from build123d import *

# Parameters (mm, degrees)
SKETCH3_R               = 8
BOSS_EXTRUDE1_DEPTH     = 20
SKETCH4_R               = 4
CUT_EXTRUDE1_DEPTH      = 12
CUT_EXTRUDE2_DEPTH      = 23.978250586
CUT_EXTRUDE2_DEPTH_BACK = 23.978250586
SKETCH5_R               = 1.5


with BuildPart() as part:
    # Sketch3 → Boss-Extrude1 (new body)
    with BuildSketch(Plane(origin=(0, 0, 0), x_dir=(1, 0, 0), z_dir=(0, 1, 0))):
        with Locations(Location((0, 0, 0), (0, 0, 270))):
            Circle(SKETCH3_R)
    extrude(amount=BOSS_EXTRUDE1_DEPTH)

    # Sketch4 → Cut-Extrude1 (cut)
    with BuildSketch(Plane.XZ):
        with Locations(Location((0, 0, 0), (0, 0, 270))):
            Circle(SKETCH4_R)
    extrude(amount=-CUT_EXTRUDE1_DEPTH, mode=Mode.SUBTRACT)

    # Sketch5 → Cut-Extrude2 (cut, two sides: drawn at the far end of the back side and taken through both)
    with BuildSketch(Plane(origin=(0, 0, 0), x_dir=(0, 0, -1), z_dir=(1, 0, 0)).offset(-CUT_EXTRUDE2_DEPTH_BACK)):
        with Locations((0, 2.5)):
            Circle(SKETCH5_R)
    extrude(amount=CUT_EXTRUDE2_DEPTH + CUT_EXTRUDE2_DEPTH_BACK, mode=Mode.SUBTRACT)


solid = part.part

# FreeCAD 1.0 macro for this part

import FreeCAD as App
import Part
import Sketcher
from FreeCAD import Vector

doc = App.newDocument("Part")
body = doc.addObject("PartDesign::Body", "Body")

# Sketch on XZ plane
sketch1 = doc.addObject("Sketcher::SketchObject", "Sketch")
body.addObject(sketch1)
sketch1.AttachmentSupport = (doc.XZ_Plane, [""])
sketch1.MapMode = "FlatFace"
sketch1.addGeometry(Part.Circle(Vector(0, 0, 0), Vector(0, 0, 1), 8), False)
sketch1.addConstraint([
    Sketcher.Constraint("Coincident", 0, 3, -1, 1),
    Sketcher.Constraint("Diameter", 0, 16.0),
])
pad1 = doc.addObject("PartDesign::Pad", "Pad")
body.addObject(pad1)
pad1.Profile = sketch1
pad1.Length = 20
pad1.Reversed = True

# Sketch on XZ plane
sketch2 = doc.addObject("Sketcher::SketchObject", "Sketch001")
body.addObject(sketch2)
sketch2.AttachmentSupport = (doc.XZ_Plane, [""])
sketch2.MapMode = "FlatFace"
sketch2.addGeometry(Part.Circle(Vector(0, 0, 0), Vector(0, 0, 1), 4), False)
sketch2.addConstraint([
    Sketcher.Constraint("Coincident", 0, 3, -1, 1),
    Sketcher.Constraint("Diameter", 0, 8.0),
])
pocket1 = doc.addObject("PartDesign::Pocket", "Pocket")
body.addObject(pocket1)
pocket1.Profile = sketch2
pocket1.Length = 12

# Sketch on YZ plane
sketch3 = doc.addObject("Sketcher::SketchObject", "Sketch002")
body.addObject(sketch3)
sketch3.AttachmentSupport = (doc.YZ_Plane, [""])
sketch3.MapMode = "FlatFace"
sketch3.addGeometry(Part.Circle(Vector(2.5, 0, 0), Vector(0, 0, 1), 1.5), False)
sketch3.addConstraint([
    Sketcher.Constraint("PointOnObject", 0, 3, -1),
    Sketcher.Constraint("Diameter", 0, 3.0),
    Sketcher.Constraint("DistanceX", -1, 1, 0, 3, 2.5),
])
pocket2 = doc.addObject("PartDesign::Pocket", "Pocket001")
body.addObject(pocket2)
pocket2.Profile = sketch3
pocket2.Type = "ThroughAll"
pocket2.Midplane = True

doc.recompute()
